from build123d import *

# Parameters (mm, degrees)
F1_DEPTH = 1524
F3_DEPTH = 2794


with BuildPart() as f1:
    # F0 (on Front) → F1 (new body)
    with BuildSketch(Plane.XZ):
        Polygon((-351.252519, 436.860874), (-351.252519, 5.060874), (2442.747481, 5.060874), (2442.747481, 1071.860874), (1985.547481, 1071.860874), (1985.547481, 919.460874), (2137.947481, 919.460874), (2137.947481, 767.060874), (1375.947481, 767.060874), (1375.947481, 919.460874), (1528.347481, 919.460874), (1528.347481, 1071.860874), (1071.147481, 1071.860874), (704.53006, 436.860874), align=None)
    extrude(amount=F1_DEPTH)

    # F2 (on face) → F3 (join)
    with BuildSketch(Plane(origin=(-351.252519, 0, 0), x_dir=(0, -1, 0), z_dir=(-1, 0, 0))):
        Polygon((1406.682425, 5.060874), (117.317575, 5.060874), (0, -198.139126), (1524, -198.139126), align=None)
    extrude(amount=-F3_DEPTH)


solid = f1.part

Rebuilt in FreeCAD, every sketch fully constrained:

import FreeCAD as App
import Part
import Sketcher

V = App.Vector
Q = App.Units.Quantity


def add_polygon(sketch, points):
    """Adds a closed chain of lines whose ends are joined by coincident constraints."""
    first, n = sketch.GeometryCount, len(points)
    for a, b in zip(points, points[1:] + points[:1]):
        sketch.addGeometry(Part.LineSegment(App.Vector(*a, 0), App.Vector(*b, 0)), False)
    for i in range(n):
        sketch.addConstraint(Sketcher.Constraint("Coincident", first + i, 2, first + (i + 1) % n, 1))

doc = App.newDocument("Part")
params = doc.addObject("Spreadsheet::Sheet", "Params")
for row, (alias, value) in enumerate([
    ("sketch1_width", "110 in"),
    ("sketch1_width2", "18 in"),
    ("sketch1_width3", "6 in"),
    ("sketch1_width4", "30 in"),
    ("sketch1_height", "17 in"),
    ("pad1_length", "60 in"),
    ("sketch2_width", "60 in"),
    ("pad2_length", "110 in"),
], start=1):
    params.set(f"A{row}", alias)
    params.set(f"B{row}", "=" + value)
    params.setAlias(f"B{row}", alias)

body = doc.addObject("PartDesign::Body", "Body")

# Sketch on XZ plane
sketch1 = doc.addObject("Sketcher::SketchObject", "Sketch")
body.addObject(sketch1)
sketch1.AttachmentSupport = (doc.XZ_Plane, [""])
sketch1.MapMode = "FlatFace"
add_polygon(sketch1, [(-351.252519, 436.860874), (-351.252519, 5.060874), (2442.747481, 5.060874), (2442.747481, 1071.860874), (1985.547481, 1071.860874), (1985.547481, 919.460874), (2137.947481, 919.460874), (2137.947481, 767.060874), (1375.947481, 767.060874), (1375.947481, 919.460874), (1528.347481, 919.460874), (1528.347481, 1071.860874), (1071.147481, 1071.860874), (704.53006, 436.860874)])  # lines 0-13
sketch1.addConstraint([
    Sketcher.Constraint("Vertical", 0),
    Sketcher.Constraint("Horizontal", 1),
    Sketcher.Constraint("Vertical", 2),
    Sketcher.Constraint("Horizontal", 3),
    Sketcher.Constraint("Vertical", 4),
    Sketcher.Constraint("Horizontal", 5),
    Sketcher.Constraint("Vertical", 6),
    Sketcher.Constraint("Horizontal", 7),
    Sketcher.Constraint("Vertical", 8),
    Sketcher.Constraint("Horizontal", 9),
    Sketcher.Constraint("Vertical", 10),
    Sketcher.Constraint("Horizontal", 11),
    Sketcher.Constraint("Horizontal", 13),
    Sketcher.Constraint("Horizontal", 5, 2, 8, 2),
    Sketcher.Constraint("Horizontal", 3, 2, 10, 2),
    Sketcher.Constraint("Equal", 5, 9),
    Sketcher.Constraint("Equal", 3, 11),
    Sketcher.Constraint("Equal", 9, 4),
    Sketcher.Constraint("Equal", 4, 6),
    Sketcher.Constraint("DistanceX", 1, 1, 1, 2, Q("110 in")),
    Sketcher.Constraint("DistanceX", 3, 2, 3, 1, Q("18 in")),
    Sketcher.Constraint("DistanceX", 5, 1, 5, 2, Q("6 in")),
    Sketcher.Constraint("DistanceX", 7, 2, 7, 1, Q("30 in")),
    Sketcher.Constraint("DistanceY", 0, 2, 0, 1, Q("17 in")),
    Sketcher.Constraint("DistanceY", 2, 1, 2, 2, Q("42 in")),
    Sketcher.Constraint("Angle", 12, Q("-120 deg")),
    Sketcher.Constraint("DistanceX", 0, 2, -1, 1, 351.252519),
    Sketcher.Constraint("DistanceY", -1, 1, 0, 2, 5.060874),
])
sketch1.setExpression("Constraints[33]", "Params.sketch1_width")
sketch1.setExpression("Constraints[34]", "Params.sketch1_width2")
sketch1.setExpression("Constraints[35]", "Params.sketch1_width3")
sketch1.setExpression("Constraints[36]", "Params.sketch1_width4")
sketch1.setExpression("Constraints[37]", "Params.sketch1_height")
pad1 = doc.addObject("PartDesign::Pad", "Pad")
body.addObject(pad1)
pad1.Profile = sketch1
pad1.setExpression("Length", "Params.pad1_length")

# Sketch on YZ plane
sketch2 = doc.addObject("Sketcher::SketchObject", "Sketch001")
body.addObject(sketch2)
sketch2.AttachmentSupport = (doc.YZ_Plane, [""])
sketch2.MapMode = "FlatFace"
sketch2.AttachmentOffset = App.Placement(V(0, 0, -351.252519), App.Rotation())
add_polygon(sketch2, [(-1406.682425, 5.060874), (-117.317575, 5.060874), (0, -198.139126), (-1524, -198.139126)])  # lines 0-3
sketch2.addConstraint([
    Sketcher.Constraint("Horizontal", 0),
    Sketcher.Constraint("Horizontal", 2),
    Sketcher.Constraint("PointOnObject", 1, 2, -2),
    Sketcher.Constraint("Equal", 1, 3),
    Sketcher.Constraint("DistanceX", 2, 2, 2, 1, Q("60 in")),
    Sketcher.Constraint("Angle", 1, Q("-60 deg")),
    Sketcher.Constraint("DistanceY", 1, 2, 0, 2, Q("8 in")),
    Sketcher.Constraint("DistanceY", -1, 1, 0, 2, 5.060874),
])
sketch2.setExpression("Constraints[8]", "Params.sketch2_width")
pad2 = doc.addObject("PartDesign::Pad", "Pad001")
body.addObject(pad2)
pad2.Profile = sketch2
pad2.setExpression("Length", "Params.pad2_length")

doc.recompute()
